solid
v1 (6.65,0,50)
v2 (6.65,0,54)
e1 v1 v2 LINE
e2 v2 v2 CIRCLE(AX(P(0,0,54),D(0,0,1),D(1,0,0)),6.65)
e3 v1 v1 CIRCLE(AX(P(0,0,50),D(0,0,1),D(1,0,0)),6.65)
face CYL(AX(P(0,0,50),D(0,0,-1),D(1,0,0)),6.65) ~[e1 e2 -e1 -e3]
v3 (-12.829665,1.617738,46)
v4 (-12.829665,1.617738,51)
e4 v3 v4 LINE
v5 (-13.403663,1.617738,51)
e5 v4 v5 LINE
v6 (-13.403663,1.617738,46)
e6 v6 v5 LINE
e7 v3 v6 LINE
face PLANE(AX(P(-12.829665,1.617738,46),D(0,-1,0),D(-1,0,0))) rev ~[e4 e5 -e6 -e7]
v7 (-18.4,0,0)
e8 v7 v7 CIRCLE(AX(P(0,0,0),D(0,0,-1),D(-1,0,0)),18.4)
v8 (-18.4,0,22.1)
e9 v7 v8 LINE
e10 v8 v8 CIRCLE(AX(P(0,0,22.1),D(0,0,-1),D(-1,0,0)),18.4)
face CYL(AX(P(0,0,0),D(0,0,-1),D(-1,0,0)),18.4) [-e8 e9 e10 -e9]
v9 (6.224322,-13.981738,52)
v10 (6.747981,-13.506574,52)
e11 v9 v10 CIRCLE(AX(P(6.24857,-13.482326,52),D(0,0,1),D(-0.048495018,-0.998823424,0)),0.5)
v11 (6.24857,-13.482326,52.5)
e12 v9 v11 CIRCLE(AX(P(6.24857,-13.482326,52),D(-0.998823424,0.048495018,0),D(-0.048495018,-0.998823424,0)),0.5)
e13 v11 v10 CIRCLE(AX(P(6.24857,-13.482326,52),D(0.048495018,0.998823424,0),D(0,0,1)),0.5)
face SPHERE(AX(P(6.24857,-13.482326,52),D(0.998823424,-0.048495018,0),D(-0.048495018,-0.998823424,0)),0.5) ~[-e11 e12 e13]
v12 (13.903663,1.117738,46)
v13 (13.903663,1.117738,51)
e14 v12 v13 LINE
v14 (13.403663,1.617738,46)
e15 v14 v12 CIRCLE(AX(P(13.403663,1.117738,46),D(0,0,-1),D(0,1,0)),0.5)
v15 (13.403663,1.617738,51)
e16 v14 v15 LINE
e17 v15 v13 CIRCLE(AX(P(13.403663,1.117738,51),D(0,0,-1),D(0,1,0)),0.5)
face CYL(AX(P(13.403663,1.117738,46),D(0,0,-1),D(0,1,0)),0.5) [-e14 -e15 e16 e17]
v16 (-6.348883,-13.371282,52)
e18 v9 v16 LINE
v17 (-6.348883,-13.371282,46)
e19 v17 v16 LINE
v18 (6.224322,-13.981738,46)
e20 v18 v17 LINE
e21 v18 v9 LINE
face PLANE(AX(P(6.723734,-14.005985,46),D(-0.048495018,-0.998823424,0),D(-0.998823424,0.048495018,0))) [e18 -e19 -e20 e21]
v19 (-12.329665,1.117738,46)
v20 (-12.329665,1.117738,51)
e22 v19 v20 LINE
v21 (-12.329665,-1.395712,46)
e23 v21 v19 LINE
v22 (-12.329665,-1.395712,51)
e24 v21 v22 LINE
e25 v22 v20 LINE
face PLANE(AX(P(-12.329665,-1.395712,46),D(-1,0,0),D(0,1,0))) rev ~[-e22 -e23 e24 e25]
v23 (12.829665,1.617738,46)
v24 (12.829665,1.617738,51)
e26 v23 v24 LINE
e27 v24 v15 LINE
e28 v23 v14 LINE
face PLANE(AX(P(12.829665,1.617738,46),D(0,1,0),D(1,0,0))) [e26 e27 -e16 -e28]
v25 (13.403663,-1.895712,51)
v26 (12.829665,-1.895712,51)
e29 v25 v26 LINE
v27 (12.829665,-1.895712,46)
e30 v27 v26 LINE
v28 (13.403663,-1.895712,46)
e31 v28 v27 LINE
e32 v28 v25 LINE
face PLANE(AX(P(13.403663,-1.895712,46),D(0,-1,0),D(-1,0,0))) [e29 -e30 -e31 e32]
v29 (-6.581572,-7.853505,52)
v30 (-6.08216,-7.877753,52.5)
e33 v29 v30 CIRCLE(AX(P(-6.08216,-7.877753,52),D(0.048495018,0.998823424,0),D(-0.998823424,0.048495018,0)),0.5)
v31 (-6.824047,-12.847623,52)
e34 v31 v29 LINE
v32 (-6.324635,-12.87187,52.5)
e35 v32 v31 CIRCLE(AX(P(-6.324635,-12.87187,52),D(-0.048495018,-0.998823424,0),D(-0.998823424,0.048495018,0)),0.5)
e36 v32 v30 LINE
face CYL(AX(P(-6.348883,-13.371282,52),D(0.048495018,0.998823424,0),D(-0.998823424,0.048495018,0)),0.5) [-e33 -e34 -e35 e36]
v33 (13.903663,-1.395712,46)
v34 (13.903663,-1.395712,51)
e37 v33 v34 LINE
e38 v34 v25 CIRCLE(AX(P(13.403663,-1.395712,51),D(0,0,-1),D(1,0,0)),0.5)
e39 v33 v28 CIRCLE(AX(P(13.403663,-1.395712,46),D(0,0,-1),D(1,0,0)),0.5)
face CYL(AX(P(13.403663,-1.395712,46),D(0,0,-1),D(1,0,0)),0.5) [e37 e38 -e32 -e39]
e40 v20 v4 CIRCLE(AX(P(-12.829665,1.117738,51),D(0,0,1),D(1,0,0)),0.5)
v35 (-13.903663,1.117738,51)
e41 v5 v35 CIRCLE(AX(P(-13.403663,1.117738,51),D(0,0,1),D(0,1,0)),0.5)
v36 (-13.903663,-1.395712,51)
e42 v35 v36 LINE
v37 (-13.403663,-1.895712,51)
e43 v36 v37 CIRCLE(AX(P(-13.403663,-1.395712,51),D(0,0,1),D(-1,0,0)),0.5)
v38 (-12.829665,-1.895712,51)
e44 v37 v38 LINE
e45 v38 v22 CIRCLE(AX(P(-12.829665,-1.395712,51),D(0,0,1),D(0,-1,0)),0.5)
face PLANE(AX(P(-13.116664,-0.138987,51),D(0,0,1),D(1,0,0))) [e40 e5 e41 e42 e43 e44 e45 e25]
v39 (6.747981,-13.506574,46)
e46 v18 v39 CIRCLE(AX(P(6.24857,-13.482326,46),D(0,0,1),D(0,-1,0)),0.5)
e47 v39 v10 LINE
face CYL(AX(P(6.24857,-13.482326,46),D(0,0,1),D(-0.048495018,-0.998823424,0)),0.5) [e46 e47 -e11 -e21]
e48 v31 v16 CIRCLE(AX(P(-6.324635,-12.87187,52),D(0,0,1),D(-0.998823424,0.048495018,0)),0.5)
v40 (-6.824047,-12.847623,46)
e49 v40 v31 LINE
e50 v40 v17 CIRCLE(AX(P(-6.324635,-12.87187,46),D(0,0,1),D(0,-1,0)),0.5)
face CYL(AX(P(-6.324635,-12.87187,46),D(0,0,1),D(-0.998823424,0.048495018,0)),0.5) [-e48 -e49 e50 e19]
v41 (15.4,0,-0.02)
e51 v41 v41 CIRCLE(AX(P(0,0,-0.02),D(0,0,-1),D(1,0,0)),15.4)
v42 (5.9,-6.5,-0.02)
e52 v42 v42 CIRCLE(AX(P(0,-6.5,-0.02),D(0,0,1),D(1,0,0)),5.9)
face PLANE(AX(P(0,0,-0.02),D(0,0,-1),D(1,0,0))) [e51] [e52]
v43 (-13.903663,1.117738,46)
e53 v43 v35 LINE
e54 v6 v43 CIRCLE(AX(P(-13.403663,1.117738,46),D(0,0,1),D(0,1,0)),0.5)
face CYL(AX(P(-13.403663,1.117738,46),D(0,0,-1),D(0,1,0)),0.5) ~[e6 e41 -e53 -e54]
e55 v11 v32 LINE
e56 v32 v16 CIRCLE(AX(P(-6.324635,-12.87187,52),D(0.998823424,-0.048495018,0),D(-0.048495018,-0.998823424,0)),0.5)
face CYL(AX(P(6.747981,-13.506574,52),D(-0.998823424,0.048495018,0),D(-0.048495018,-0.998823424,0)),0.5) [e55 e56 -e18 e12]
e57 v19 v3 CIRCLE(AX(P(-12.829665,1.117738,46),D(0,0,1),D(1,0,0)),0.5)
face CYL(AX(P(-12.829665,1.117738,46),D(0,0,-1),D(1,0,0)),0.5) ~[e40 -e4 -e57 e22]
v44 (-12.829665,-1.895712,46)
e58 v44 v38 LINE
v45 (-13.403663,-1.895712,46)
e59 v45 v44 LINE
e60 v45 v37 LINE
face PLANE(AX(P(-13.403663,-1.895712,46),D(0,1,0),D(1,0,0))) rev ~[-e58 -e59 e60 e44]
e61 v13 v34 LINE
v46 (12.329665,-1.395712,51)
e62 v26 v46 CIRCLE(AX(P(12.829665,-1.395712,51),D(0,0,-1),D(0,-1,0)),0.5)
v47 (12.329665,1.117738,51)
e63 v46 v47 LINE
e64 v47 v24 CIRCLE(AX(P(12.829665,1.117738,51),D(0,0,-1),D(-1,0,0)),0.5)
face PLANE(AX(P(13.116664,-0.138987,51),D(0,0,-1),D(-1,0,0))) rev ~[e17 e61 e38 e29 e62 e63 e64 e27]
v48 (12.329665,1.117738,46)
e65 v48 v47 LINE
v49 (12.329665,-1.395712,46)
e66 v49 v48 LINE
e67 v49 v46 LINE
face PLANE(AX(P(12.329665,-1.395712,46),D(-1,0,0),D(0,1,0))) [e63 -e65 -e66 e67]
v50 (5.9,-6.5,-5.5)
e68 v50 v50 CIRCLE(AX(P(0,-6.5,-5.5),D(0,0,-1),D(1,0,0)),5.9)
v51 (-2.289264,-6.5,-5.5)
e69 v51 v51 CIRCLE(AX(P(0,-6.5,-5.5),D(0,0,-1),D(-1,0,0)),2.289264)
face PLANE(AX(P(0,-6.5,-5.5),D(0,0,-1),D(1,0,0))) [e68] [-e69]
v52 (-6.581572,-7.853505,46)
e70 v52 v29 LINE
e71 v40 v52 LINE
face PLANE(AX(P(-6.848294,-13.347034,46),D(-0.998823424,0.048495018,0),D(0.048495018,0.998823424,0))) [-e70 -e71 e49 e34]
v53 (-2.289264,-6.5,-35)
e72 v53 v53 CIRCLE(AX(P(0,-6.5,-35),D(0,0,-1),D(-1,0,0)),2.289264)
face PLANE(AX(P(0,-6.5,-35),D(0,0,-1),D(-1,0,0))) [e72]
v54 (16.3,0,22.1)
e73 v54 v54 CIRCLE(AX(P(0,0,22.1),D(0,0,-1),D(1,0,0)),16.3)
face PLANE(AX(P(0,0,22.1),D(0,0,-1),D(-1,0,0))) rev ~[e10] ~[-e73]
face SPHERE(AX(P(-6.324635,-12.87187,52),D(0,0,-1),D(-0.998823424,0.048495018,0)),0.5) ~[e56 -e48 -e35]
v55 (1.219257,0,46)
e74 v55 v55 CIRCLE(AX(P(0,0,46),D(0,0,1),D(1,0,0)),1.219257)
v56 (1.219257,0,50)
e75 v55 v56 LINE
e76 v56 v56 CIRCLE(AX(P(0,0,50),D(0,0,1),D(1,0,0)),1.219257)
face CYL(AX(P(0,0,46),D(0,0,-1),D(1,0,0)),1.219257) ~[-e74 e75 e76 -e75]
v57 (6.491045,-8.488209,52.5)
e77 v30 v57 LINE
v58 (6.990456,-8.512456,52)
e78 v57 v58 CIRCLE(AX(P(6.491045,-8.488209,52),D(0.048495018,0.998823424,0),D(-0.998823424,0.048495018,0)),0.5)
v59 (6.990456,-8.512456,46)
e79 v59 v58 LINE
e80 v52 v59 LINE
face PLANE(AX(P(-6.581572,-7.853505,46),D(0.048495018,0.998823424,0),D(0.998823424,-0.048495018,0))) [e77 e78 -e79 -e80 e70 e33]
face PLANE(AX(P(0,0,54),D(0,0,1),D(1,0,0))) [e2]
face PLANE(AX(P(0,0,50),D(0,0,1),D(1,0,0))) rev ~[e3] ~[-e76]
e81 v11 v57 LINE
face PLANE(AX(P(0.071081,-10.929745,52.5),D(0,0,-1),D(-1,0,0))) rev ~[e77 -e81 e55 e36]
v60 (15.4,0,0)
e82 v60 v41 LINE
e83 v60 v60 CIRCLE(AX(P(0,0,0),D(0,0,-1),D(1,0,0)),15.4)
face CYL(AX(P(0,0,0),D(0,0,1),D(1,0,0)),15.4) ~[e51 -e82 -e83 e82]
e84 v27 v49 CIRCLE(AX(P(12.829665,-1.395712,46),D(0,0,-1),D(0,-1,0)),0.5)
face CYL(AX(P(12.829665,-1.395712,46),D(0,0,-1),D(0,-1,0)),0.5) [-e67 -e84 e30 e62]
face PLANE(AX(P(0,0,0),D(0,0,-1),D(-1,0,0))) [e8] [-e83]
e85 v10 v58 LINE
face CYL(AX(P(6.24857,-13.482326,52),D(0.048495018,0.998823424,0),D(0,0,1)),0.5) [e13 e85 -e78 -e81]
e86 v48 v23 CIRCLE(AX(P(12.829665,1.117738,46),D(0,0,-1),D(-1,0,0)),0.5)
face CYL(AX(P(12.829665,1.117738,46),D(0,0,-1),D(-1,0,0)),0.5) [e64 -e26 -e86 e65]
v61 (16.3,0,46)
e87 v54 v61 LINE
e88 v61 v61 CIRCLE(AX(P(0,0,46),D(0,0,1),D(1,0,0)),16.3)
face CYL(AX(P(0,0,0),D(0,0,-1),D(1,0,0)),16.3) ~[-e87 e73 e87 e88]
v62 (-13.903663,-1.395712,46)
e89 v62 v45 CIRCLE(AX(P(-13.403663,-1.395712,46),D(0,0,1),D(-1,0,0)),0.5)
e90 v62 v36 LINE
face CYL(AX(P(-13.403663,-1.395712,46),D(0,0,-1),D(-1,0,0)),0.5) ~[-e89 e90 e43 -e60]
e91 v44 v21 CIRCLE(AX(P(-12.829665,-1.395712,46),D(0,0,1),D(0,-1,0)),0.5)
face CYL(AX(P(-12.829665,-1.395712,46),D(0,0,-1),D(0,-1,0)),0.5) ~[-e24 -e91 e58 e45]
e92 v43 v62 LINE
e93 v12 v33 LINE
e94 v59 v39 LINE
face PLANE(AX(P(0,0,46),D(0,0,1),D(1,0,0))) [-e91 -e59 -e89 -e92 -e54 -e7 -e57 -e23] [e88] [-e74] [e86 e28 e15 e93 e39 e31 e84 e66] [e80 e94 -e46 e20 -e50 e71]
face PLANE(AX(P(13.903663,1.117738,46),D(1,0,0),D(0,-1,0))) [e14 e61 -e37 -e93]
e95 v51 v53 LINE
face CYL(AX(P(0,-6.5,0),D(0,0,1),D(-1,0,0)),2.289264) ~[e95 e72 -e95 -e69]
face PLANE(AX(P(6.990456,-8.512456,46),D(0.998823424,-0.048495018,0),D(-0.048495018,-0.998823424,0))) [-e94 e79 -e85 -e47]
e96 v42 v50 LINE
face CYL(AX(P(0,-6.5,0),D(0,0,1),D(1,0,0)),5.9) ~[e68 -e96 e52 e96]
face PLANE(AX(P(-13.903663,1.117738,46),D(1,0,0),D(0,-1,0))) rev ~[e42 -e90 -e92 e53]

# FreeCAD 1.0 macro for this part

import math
import FreeCAD as App
import Part
import Sketcher
Q = App.Units.Quantity


def edges_at(feature, points):
    """Names of the edges that pass closest to the given points."""
    edges = feature.Shape.Edges
    near = lambda p: min(range(len(edges)), key=lambda i: edges[i].distToShape(Part.Vertex(*p))[0])
    return sorted({f"Edge{near(p) + 1}" for p in points})

doc = App.newDocument("Part")
body = doc.addObject("PartDesign::Body", "Body")

# Sketch on XY plane
sketch1 = body.newObject("Sketcher::SketchObject", "Sketch")
sketch1.AttachmentSupport = (doc.getObject("XY_Plane"), [""])
sketch1.MapMode = "FlatFace"
sketch1.addGeometry(Part.Circle(App.Vector(0, 0, 0), App.Vector(0, 0, 1), 16), False)
sketch1.addConstraint([
    Sketcher.Constraint("Coincident", 0, 3, -1, 1),
    Sketcher.Constraint("Diameter", 0, Q("32.6 mm")),
])
pad1 = body.newObject("PartDesign::Pad", "Pad")
pad1.Profile = sketch1
pad1.Length = 46

# Sketch on XY plane
sketch2 = body.newObject("Sketcher::SketchObject", "Sketch001")
sketch2.AttachmentSupport = (doc.getObject("XY_Plane"), [""])
sketch2.MapMode = "FlatFace"
sketch2.addGeometry(Part.Circle(App.Vector(0, 0, 0), App.Vector(0, 0, 1), 18), False)
sketch2.addConstraint([
    Sketcher.Constraint("Coincident", 0, 3, -1, 1),
    Sketcher.Constraint("Diameter", 0, Q("36.8 mm")),
])
pad2 = body.newObject("PartDesign::Pad", "Pad001")
pad2.Profile = sketch2
pad2.Length = 22.1

# Sketch on XY plane
sketch3 = body.newObject("Sketcher::SketchObject", "Sketch002")
sketch3.AttachmentSupport = (doc.getObject("XY_Plane"), [""])
sketch3.MapMode = "FlatFace"
sketch3.addGeometry([
    Part.Circle(App.Vector(0, -6.5, 0), App.Vector(0, 0, 1), 5.9),
    Part.Circle(App.Vector(0, -6.5, 0), App.Vector(0, 0, 1), 2.3),
], False)
sketch3.addConstraint([
    Sketcher.Constraint("Coincident", 1, 3, 0, 3),
    Sketcher.Constraint("PointOnObject", 0, 3, -2),
    Sketcher.Constraint("Diameter", 0, Q("11.8 mm")),
    Sketcher.Constraint("DistanceY", 0, 3, -1, 1, Q("6.5 mm")),
    Sketcher.Constraint("Diameter", 1, Q("4.578528 mm")),
])
pad3 = body.newObject("PartDesign::Pad", "Pad002")
pad3.Profile = sketch3
pad3.Length = 5.5
pad3.Reversed = True

# Sketch on XY plane
sketch4 = body.newObject("Sketcher::SketchObject", "Sketch003")
sketch4.AttachmentSupport = (doc.getObject("XY_Plane"), [""])
sketch4.MapMode = "FlatFace"
sketch4.addGeometry(Part.Circle(App.Vector(0, -6.5, 0), App.Vector(0, 0, 1), 2.3), False)
sketch4.addConstraint([
    Sketcher.Constraint("PointOnObject", 0, 3, -2),
    Sketcher.Constraint("DistanceY", 0, 3, -1, 1, Q("6.5 mm")),
    Sketcher.Constraint("Diameter", 0, Q("4.578528 mm")),
])
pad4 = body.newObject("PartDesign::Pad", "Pad003")
pad4.Profile = sketch4
pad4.Length = 35
pad4.Reversed = True

# Sketch on XY plane
sketch5 = body.newObject("Sketcher::SketchObject", "Sketch004")
sketch5.AttachmentSupport = (doc.getObject("XY_Plane"), [""])
sketch5.MapMode = "FlatFace"
sketch5.addGeometry(Part.Circle(App.Vector(0, 0, 0), App.Vector(0, 0, 1), 15), False)
sketch5.addConstraint([
    Sketcher.Constraint("Coincident", 0, 3, -1, 1),
    Sketcher.Constraint("Diameter", 0, Q("30.8 mm")),
])
pad5 = body.newObject("PartDesign::Pad", "Pad004")
pad5.Profile = sketch5
pad5.Length = 0.02
pad5.Reversed = True

# Sketch on XY plane
sketch6 = body.newObject("Sketcher::SketchObject", "Sketch005")
sketch6.AttachmentSupport = (doc.getObject("XY_Plane"), [""])
sketch6.MapMode = "FlatFace"
sketch6.AttachmentOffset = App.Placement(App.Vector(0, 0, 46), App.Rotation())
sketch6.addGeometry(Part.Circle(App.Vector(0, 0, 0), App.Vector(0, 0, 1), 1.2), False)
sketch6.addConstraint([
    Sketcher.Constraint("Coincident", 0, 3, -1, 1),
    Sketcher.Constraint("Diameter", 0, Q("2.438515 mm")),
])
pad6 = body.newObject("PartDesign::Pad", "Pad005")
pad6.Profile = sketch6
pad6.Length = 4

# Sketch on XY plane
sketch7 = body.newObject("Sketcher::SketchObject", "Sketch006")
sketch7.AttachmentSupport = (doc.getObject("XY_Plane"), [""])
sketch7.MapMode = "FlatFace"
sketch7.AttachmentOffset = App.Placement(App.Vector(0, 0, 50), App.Rotation())
sketch7.addGeometry(Part.Circle(App.Vector(0, 0, 0), App.Vector(0, 0, 1), 7), False)
sketch7.addConstraint([
    Sketcher.Constraint("Coincident", 0, 3, -1, 1),
    Sketcher.Constraint("Diameter", 0, Q("13.3 mm")),
])
pad7 = body.newObject("PartDesign::Pad", "Pad006")
pad7.Profile = sketch7
pad7.Length = 4

# Sketch on XY plane
sketch8 = body.newObject("Sketcher::SketchObject", "Sketch007")
sketch8.AttachmentSupport = (doc.getObject("XY_Plane"), [""])
sketch8.MapMode = "FlatFace"
sketch8.AttachmentOffset = App.Placement(App.Vector(0, 0, 46), App.Rotation())
sketch8.addGeometry([
    Part.LineSegment(App.Vector(-6.848294, -13.347034, 0), App.Vector(6.723734, -14.005985, 0)),
    Part.LineSegment(App.Vector(6.723734, -14.005985, 0), App.Vector(6.990456, -8.512456, 0)),
    Part.LineSegment(App.Vector(6.990456, -8.512456, 0), App.Vector(-6.581572, -7.853505, 0)),
    Part.LineSegment(App.Vector(-6.581572, -7.853505, 0), App.Vector(-6.848294, -13.347034, 0)),
], False)
sketch8.addConstraint([
    Sketcher.Constraint("Coincident", 0, 2, 1, 1),
    Sketcher.Constraint("Coincident", 1, 2, 2, 1),
    Sketcher.Constraint("Coincident", 2, 2, 3, 1),
    Sketcher.Constraint("Coincident", 3, 2, 0, 1),
    Sketcher.Constraint("Perpendicular", 0, 1),
    Sketcher.Constraint("Perpendicular", 1, 2),
    Sketcher.Constraint("Perpendicular", 2, 3),
    Sketcher.Constraint("Distance", 1, Q("5.5 mm")),
    Sketcher.Constraint("DistanceX", 2, 2, -1, 1, Q("6.581572 mm")),
    Sketcher.Constraint("DistanceY", 0, 2, 1, 2, Q("5.493529 mm")),
    Sketcher.Constraint("DistanceX", 2, 2, 1, 2, Q("13.572028 mm")),
    Sketcher.Constraint("DistanceY", 0, 2, -1, 1, Q("14.005985 mm")),
])
pad8 = body.newObject("PartDesign::Pad", "Pad007")
pad8.Profile = sketch8
pad8.Length = 6.5
doc.recompute()

fillet = body.newObject("PartDesign::Fillet", "Fillet")
fillet.Base = (pad8, edges_at(pad8, [(-6.848, -13.347, 49.25), (-6.715, -10.6, 52.5), (-0.062, -13.677, 52.5)]))
fillet.Radius = 0.5
doc.recompute()

fillet2 = body.newObject("PartDesign::Fillet", "Fillet001")
fillet2.Base = (fillet, edges_at(fillet, [(6.724, -14.006, 49), (6.869, -11.01, 52.5), (6.731, -13.86, 52.354)]))
fillet2.Radius = 0.5

# Sketch on XY plane
sketch9 = body.newObject("Sketcher::SketchObject", "Sketch008")
sketch9.AttachmentSupport = (doc.getObject("XY_Plane"), [""])
sketch9.MapMode = "FlatFace"
sketch9.AttachmentOffset = App.Placement(App.Vector(0, 0, 46), App.Rotation())
sketch9.addGeometry([
    Part.LineSegment(App.Vector(-13.9, 1.1, 0), App.Vector(-13.9, -1.4, 0)),  # 0
    Part.ArcOfCircle(Part.Circle(App.Vector(-13.4, -1.4, 0), App.Vector(0, 0, 1), 0.5), math.radians(180), math.radians(270)),  # 1
    Part.LineSegment(App.Vector(-13.4, -1.9, 0), App.Vector(-12.8, -1.9, 0)),  # 2
    Part.ArcOfCircle(Part.Circle(App.Vector(-12.8, -1.4, 0), App.Vector(0, 0, 1), 0.5), math.radians(-90), math.radians(0)),  # 3
    Part.LineSegment(App.Vector(-12.3, -1.4, 0), App.Vector(-12.3, 1.1, 0)),  # 4
    Part.ArcOfCircle(Part.Circle(App.Vector(-12.8, 1.1, 0), App.Vector(0, 0, 1), 0.5), math.radians(0), math.radians(90)),  # 5
    Part.LineSegment(App.Vector(-12.8, 1.6, 0), App.Vector(-13.4, 1.6, 0)),  # 6
    Part.ArcOfCircle(Part.Circle(App.Vector(-13.4, 1.1, 0), App.Vector(0, 0, 1), 0.5), math.radians(90), math.radians(180)),  # 7
    Part.LineSegment(App.Vector(12.8, -1.9, 0), App.Vector(13.4, -1.9, 0)),  # 8
    Part.ArcOfCircle(Part.Circle(App.Vector(13.4, -1.4, 0), App.Vector(0, 0, 1), 0.5), math.radians(-90), math.radians(0)),  # 9
    Part.LineSegment(App.Vector(13.9, -1.4, 0), App.Vector(13.9, 1.1, 0)),  # 10
    Part.ArcOfCircle(Part.Circle(App.Vector(13.4, 1.1, 0), App.Vector(0, 0, 1), 0.5), math.radians(0), math.radians(90)),  # 11
    Part.LineSegment(App.Vector(13.4, 1.6, 0), App.Vector(12.8, 1.6, 0)),  # 12
    Part.ArcOfCircle(Part.Circle(App.Vector(12.8, 1.1, 0), App.Vector(0, 0, 1), 0.5), math.radians(90), math.radians(180)),  # 13
    Part.LineSegment(App.Vector(12.3, 1.1, 0), App.Vector(12.3, -1.4, 0)),  # 14
    Part.ArcOfCircle(Part.Circle(App.Vector(12.8, -1.4, 0), App.Vector(0, 0, 1), 0.5), math.radians(180), math.radians(270)),  # 15
], False)
sketch9.addConstraint([
    Sketcher.Constraint("Tangent", 0, 2, 1, 1),
    Sketcher.Constraint("Tangent", 1, 2, 2, 1),
    Sketcher.Constraint("Tangent", 2, 2, 3, 1),
    Sketcher.Constraint("Tangent", 3, 2, 4, 1),
    Sketcher.Constraint("Tangent", 4, 2, 5, 1),
    Sketcher.Constraint("Tangent", 5, 2, 6, 1),
    Sketcher.Constraint("Tangent", 6, 2, 7, 1),
    Sketcher.Constraint("Tangent", 7, 2, 0, 1),
    Sketcher.Constraint("Tangent", 8, 2, 9, 1),
    Sketcher.Constraint("Tangent", 9, 2, 10, 1),
    Sketcher.Constraint("Tangent", 10, 2, 11, 1),
    Sketcher.Constraint("Tangent", 11, 2, 12, 1),
    Sketcher.Constraint("Tangent", 12, 2, 13, 1),
    Sketcher.Constraint("Tangent", 13, 2, 14, 1),
    Sketcher.Constraint("Tangent", 14, 2, 15, 1),
    Sketcher.Constraint("Tangent", 15, 2, 8, 1),
    Sketcher.Constraint("Vertical", 0),
    Sketcher.Constraint("Horizontal", 2),
    Sketcher.Constraint("Vertical", 4),
    Sketcher.Constraint("Horizontal", 6),
    Sketcher.Constraint("Horizontal", 8),
    Sketcher.Constraint("Vertical", 10),
    Sketcher.Constraint("Horizontal", 12),
    Sketcher.Constraint("Vertical", 14),
    Sketcher.Constraint("Equal", 1, 3),
    Sketcher.Constraint("Equal", 3, 5),
    Sketcher.Constraint("Equal", 5, 7),
    Sketcher.Constraint("Equal", 7, 9),
    Sketcher.Constraint("Equal", 9, 11),
    Sketcher.Constraint("Equal", 11, 13),
    Sketcher.Constraint("Equal", 13, 15),
    Sketcher.Constraint("Symmetric", 1, 3, 9, 3, -2),
    Sketcher.Constraint("Symmetric", 5, 3, 13, 3, -2),
    Sketcher.Constraint("Radius", 1, Q("0.5 mm")),
    Sketcher.Constraint("DistanceX", 2, 1, 2, 2, Q("0.573999 mm")),
    Sketcher.Constraint("DistanceY", 0, 2, 0, 1, Q("2.51345 mm")),
    Sketcher.Constraint("DistanceY", -1, 1, 5, 3, Q("1.117738 mm")),
    Sketcher.Constraint("DistanceX", 5, 3, 13, 3, Q("25.659329 mm")),
])
pad9 = body.newObject("PartDesign::Pad", "Pad008")
pad9.Profile = sketch9
pad9.Length = 5

doc.recompute()
